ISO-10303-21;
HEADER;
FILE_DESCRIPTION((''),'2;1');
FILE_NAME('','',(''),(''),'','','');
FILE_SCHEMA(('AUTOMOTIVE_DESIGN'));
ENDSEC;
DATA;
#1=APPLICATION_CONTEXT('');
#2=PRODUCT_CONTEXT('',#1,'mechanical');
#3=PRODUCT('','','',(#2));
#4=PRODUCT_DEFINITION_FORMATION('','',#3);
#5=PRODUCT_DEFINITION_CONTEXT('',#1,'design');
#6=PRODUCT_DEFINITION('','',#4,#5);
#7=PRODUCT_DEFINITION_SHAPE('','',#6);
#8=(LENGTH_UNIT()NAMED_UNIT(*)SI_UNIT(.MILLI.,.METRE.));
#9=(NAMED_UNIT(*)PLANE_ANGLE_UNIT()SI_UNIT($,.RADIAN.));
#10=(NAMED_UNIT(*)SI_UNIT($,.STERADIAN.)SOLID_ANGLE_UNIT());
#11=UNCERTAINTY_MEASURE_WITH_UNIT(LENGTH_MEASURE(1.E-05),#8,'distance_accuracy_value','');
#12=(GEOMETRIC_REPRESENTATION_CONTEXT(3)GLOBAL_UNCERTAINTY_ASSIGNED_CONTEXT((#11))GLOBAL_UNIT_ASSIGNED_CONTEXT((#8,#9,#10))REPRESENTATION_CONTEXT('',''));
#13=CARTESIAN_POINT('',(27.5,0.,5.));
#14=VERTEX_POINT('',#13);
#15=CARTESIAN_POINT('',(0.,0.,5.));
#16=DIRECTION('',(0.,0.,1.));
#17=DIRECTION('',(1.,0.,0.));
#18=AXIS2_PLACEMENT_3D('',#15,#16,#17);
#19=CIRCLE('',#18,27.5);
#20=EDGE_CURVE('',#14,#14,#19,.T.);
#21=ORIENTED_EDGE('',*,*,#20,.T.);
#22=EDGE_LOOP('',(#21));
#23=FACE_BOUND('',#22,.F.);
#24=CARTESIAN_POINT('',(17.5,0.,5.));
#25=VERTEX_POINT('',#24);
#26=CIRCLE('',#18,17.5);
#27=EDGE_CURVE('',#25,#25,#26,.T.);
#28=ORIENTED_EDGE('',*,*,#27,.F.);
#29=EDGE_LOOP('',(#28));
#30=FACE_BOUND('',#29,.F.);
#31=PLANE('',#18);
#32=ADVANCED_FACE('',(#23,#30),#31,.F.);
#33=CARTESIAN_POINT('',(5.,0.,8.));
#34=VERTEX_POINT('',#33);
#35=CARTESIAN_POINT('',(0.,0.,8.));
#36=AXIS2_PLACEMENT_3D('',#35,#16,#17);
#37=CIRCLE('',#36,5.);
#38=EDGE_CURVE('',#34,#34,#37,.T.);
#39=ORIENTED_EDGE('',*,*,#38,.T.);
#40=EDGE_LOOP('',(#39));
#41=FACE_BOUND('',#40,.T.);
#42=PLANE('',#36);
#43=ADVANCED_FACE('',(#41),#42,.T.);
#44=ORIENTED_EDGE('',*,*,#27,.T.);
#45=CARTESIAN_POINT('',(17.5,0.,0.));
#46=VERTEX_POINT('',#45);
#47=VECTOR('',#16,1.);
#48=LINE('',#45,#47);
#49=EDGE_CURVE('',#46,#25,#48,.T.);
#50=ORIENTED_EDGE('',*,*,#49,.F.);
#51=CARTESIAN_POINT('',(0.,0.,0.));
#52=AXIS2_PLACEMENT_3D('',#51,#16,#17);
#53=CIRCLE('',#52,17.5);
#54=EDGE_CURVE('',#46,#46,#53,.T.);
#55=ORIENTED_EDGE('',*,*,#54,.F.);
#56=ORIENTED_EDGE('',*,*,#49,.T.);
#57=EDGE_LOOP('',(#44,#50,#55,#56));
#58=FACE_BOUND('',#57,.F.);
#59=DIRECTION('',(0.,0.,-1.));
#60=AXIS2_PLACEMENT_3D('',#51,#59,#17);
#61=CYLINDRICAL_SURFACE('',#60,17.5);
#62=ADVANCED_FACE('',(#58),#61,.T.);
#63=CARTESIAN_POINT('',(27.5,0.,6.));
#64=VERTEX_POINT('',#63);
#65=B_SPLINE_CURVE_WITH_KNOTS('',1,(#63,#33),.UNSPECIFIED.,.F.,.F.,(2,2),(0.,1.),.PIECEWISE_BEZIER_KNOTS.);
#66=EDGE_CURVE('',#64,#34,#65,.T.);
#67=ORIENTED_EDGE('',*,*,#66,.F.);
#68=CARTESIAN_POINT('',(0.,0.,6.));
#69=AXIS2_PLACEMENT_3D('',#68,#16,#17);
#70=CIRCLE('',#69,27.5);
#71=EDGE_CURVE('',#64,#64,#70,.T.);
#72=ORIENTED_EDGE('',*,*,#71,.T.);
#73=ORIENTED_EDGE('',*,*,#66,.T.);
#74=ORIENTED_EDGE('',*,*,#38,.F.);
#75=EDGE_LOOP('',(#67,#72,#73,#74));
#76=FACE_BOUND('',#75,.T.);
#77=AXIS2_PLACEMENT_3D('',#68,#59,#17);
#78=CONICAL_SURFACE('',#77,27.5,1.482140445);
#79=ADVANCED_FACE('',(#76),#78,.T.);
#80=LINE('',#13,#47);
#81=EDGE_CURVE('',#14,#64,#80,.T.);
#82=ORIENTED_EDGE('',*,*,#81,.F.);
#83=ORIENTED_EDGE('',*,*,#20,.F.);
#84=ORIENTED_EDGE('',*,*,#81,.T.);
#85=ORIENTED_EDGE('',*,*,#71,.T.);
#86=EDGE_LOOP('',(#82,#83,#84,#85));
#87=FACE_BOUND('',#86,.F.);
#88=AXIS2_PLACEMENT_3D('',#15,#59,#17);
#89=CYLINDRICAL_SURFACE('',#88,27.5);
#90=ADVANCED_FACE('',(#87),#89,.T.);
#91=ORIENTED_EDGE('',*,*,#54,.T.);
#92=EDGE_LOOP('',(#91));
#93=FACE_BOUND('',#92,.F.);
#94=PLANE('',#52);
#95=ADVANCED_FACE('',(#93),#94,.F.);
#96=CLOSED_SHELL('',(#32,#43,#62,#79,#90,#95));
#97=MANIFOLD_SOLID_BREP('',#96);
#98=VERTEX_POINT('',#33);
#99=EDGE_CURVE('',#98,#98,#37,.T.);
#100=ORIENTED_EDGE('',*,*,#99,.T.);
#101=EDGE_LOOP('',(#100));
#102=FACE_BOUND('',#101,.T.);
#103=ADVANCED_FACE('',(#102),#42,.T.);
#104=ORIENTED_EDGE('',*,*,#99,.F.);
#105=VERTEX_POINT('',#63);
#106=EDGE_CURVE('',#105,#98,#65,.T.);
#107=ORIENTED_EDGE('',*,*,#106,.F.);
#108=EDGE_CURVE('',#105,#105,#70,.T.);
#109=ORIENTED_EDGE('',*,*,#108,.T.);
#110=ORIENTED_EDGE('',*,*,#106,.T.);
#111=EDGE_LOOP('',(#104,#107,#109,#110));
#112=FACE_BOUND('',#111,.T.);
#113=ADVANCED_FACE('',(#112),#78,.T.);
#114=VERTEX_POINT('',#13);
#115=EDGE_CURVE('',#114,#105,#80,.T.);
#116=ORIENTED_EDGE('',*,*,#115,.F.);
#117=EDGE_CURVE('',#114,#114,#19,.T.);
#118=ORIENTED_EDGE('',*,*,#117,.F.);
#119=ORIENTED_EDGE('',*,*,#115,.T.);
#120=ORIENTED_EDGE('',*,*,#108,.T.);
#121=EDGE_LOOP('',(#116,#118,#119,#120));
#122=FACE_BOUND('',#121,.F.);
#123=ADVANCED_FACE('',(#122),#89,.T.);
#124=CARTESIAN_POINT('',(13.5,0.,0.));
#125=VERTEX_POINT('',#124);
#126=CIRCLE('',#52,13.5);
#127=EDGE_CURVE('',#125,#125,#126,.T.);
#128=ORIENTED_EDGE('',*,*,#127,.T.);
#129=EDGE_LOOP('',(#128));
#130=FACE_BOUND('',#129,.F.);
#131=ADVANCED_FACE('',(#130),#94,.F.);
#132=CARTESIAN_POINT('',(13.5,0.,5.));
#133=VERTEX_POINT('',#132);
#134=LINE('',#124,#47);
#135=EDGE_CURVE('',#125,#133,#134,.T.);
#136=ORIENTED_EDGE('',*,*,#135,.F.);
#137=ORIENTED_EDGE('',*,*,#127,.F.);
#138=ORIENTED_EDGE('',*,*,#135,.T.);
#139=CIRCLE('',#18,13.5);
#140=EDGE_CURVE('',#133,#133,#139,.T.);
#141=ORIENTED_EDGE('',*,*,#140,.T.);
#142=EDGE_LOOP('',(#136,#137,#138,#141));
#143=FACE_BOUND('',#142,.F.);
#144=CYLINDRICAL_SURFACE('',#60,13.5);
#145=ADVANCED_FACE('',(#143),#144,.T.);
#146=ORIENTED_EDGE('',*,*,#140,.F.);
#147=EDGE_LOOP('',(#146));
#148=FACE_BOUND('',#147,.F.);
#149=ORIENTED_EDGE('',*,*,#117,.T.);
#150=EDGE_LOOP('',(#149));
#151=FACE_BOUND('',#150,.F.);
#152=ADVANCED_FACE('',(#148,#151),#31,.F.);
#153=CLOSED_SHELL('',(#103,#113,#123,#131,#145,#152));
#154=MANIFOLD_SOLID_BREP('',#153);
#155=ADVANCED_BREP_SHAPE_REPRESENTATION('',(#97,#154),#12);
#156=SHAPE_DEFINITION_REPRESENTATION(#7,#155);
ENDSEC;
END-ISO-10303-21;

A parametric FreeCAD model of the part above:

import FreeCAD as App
import Part
import Sketcher
Q = App.Units.Quantity

doc = App.newDocument("Part")
body = doc.addObject("PartDesign::Body", "Body")

# Sketch on XY plane
sketch1 = body.newObject("Sketcher::SketchObject", "Sketch")
sketch1.AttachmentSupport = (doc.getObject("XY_Plane"), [""])
sketch1.MapMode = "FlatFace"
sketch1.addGeometry(Part.Circle(App.Vector(0, 0, 0), App.Vector(0, 0, 1), 18), False)
sketch1.addConstraint([
    Sketcher.Constraint("Coincident", 0, 3, -1, 1),
    Sketcher.Constraint("Diameter", 0, Q("35 mm")),
])
pad1 = body.newObject("PartDesign::Pad", "Pad")
pad1.Profile = sketch1
pad1.Length = 5

# Sketch on XY plane
sketch2 = body.newObject("Sketcher::SketchObject", "Sketch001")
sketch2.AttachmentSupport = (doc.getObject("XY_Plane"), [""])
sketch2.MapMode = "FlatFace"
sketch2.AttachmentOffset = App.Placement(App.Vector(0, 0, 5), App.Rotation())
sketch2.addGeometry(Part.Circle(App.Vector(0, 0, 0), App.Vector(0, 0, 1), 28), False)
sketch2.addConstraint([
    Sketcher.Constraint("Coincident", 0, 3, -1, 1),
    Sketcher.Constraint("Diameter", 0, Q("55 mm")),
])
pad2 = body.newObject("PartDesign::Pad", "Pad001")
pad2.Profile = sketch2
pad2.Length = 1

# Sketch on XY plane
sketch3 = body.newObject("Sketcher::SketchObject", "Sketch002")
sketch3.AttachmentSupport = (doc.getObject("XY_Plane"), [""])
sketch3.MapMode = "FlatFace"
sketch3.AttachmentOffset = App.Placement(App.Vector(0, 0, 6), App.Rotation())
sketch3.addGeometry(Part.Circle(App.Vector(0, 0, 0), App.Vector(0, 0, 1), 28), False)
sketch3.addConstraint([
    Sketcher.Constraint("Coincident", 0, 3, -1, 1),
    Sketcher.Constraint("Diameter", 0, Q("55 mm")),
])

# Sketch on XY plane
sketch4 = body.newObject("Sketcher::SketchObject", "Sketch003")
sketch4.AttachmentSupport = (doc.getObject("XY_Plane"), [""])
sketch4.MapMode = "FlatFace"
sketch4.AttachmentOffset = App.Placement(App.Vector(0, 0, 8), App.Rotation())
sketch4.addGeometry(Part.Circle(App.Vector(0, 0, 0), App.Vector(0, 0, 1), 5), False)
sketch4.addConstraint([
    Sketcher.Constraint("Coincident", 0, 3, -1, 1),
    Sketcher.Constraint("Diameter", 0, Q("10 mm")),
])

additiveloft = body.newObject("PartDesign::AdditiveLoft", "AdditiveLoft")
additiveloft.Profile = sketch3
additiveloft.Sections = [sketch4]
body2 = doc.addObject("PartDesign::Body", "Body001")

# Sketch on XY plane
sketch5 = body2.newObject("Sketcher::SketchObject", "Sketch004")
sketch5.AttachmentSupport = (doc.getObject("XY_Plane001"), [""])
sketch5.MapMode = "FlatFace"
sketch5.addGeometry(Part.Circle(App.Vector(0, 0, 0), App.Vector(0, 0, 1), 14), False)
sketch5.addConstraint([
    Sketcher.Constraint("Coincident", 0, 3, -1, 1),
    Sketcher.Constraint("Diameter", 0, Q("27 mm")),
])
pad3 = body2.newObject("PartDesign::Pad", "Pad002")
pad3.Profile = sketch5
pad3.Length = 5

# Sketch on XY plane
sketch6 = body2.newObject("Sketcher::SketchObject", "Sketch005")
sketch6.AttachmentSupport = (doc.getObject("XY_Plane001"), [""])
sketch6.MapMode = "FlatFace"
sketch6.AttachmentOffset = App.Placement(App.Vector(0, 0, 5), App.Rotation())
sketch6.addGeometry(Part.Circle(App.Vector(0, 0, 0), App.Vector(0, 0, 1), 28), False)
sketch6.addConstraint([
    Sketcher.Constraint("Coincident", 0, 3, -1, 1),
    Sketcher.Constraint("Diameter", 0, Q("55 mm")),
])
pad4 = body2.newObject("PartDesign::Pad", "Pad003")
pad4.Profile = sketch6
pad4.Length = 1

# Sketch on XY plane
sketch7 = body2.newObject("Sketcher::SketchObject", "Sketch006")
sketch7.AttachmentSupport = (doc.getObject("XY_Plane001"), [""])
sketch7.MapMode = "FlatFace"
sketch7.AttachmentOffset = App.Placement(App.Vector(0, 0, 6), App.Rotation())
sketch7.addGeometry(Part.Circle(App.Vector(0, 0, 0), App.Vector(0, 0, 1), 28), False)
sketch7.addConstraint([
    Sketcher.Constraint("Coincident", 0, 3, -1, 1),
    Sketcher.Constraint("Diameter", 0, Q("55 mm")),
])

# Sketch on XY plane
sketch8 = body2.newObject("Sketcher::SketchObject", "Sketch007")
sketch8.AttachmentSupport = (doc.getObject("XY_Plane001"), [""])
sketch8.MapMode = "FlatFace"
sketch8.AttachmentOffset = App.Placement(App.Vector(0, 0, 8), App.Rotation())
sketch8.addGeometry(Part.Circle(App.Vector(0, 0, 0), App.Vector(0, 0, 1), 5), False)
sketch8.addConstraint([
    Sketcher.Constraint("Coincident", 0, 3, -1, 1),
    Sketcher.Constraint("Diameter", 0, Q("10 mm")),
])

additiveloft2 = body2.newObject("PartDesign::AdditiveLoft", "AdditiveLoft001")
additiveloft2.Profile = sketch7
additiveloft2.Sections = [sketch8]

doc.recompute()
